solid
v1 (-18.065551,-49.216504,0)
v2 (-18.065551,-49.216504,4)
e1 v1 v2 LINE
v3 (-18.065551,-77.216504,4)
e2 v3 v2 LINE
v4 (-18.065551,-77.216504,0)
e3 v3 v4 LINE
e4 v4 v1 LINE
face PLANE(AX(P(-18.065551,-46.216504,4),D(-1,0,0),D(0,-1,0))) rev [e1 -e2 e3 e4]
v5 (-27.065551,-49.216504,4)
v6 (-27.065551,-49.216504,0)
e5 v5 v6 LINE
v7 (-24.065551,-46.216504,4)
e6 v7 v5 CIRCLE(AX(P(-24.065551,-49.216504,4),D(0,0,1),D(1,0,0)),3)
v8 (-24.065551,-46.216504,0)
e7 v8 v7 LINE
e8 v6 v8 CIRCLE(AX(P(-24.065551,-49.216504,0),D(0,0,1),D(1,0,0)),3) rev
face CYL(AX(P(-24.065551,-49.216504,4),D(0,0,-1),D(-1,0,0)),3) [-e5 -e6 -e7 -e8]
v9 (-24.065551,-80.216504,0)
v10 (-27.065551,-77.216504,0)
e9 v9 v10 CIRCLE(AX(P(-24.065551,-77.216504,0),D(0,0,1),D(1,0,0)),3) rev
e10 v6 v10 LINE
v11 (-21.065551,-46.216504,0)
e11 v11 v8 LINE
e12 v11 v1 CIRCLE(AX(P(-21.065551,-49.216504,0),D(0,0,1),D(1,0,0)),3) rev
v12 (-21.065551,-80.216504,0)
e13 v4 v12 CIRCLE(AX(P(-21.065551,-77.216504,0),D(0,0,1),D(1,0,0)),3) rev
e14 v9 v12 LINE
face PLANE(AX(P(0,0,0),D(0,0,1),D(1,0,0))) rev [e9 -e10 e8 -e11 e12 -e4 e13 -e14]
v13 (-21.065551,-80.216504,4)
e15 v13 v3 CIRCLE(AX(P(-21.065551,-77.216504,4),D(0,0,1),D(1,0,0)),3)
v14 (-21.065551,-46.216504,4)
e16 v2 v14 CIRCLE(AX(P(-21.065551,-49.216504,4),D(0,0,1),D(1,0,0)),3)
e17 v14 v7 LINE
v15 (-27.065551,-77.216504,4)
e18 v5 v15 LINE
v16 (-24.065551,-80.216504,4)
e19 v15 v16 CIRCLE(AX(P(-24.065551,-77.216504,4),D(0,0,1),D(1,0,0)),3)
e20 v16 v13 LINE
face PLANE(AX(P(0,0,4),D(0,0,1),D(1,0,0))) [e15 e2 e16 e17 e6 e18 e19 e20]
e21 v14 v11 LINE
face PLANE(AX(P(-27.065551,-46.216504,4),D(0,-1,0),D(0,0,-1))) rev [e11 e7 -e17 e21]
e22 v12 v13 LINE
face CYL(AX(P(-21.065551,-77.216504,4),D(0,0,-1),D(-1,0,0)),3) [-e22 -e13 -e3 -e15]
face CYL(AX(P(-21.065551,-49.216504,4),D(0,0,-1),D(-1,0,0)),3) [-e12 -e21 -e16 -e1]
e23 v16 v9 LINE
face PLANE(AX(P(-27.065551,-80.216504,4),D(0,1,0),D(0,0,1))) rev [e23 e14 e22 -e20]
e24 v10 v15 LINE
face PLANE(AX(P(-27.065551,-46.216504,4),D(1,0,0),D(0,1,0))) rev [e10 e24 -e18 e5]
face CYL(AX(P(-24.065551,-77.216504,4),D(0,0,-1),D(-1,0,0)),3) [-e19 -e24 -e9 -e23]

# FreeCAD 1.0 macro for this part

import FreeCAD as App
import Part
import Sketcher
Q = App.Units.Quantity


def edges_at(feature, points):
    """Names of the edges that pass closest to the given points."""
    edges = feature.Shape.Edges
    near = lambda p: min(range(len(edges)), key=lambda i: edges[i].distToShape(Part.Vertex(*p))[0])
    return sorted({f"Edge{near(p) + 1}" for p in points})


def add_polygon(sketch, points):
    """Adds a closed chain of lines whose ends are joined by coincident constraints."""
    first, n = sketch.GeometryCount, len(points)
    for a, b in zip(points, points[1:] + points[:1]):
        sketch.addGeometry(Part.LineSegment(App.Vector(*a, 0), App.Vector(*b, 0)), False)
    for i in range(n):
        sketch.addConstraint(Sketcher.Constraint("Coincident", first + i, 2, first + (i + 1) % n, 1))

doc = App.newDocument("Part")
body = doc.addObject("PartDesign::Body", "Body")

# Sketch on XY plane
sketch1 = body.newObject("Sketcher::SketchObject", "Sketch")
sketch1.AttachmentSupport = (doc.getObject("XY_Plane"), [""])
sketch1.MapMode = "FlatFace"
add_polygon(sketch1, [(-27, -46), (-27, -80), (-18, -80), (-18, -46)])  # lines 0-3
sketch1.addConstraint([
    Sketcher.Constraint("Vertical", 0),
    Sketcher.Constraint("Horizontal", 1),
    Sketcher.Constraint("Vertical", 2),
    Sketcher.Constraint("Horizontal", 3),
    Sketcher.Constraint("DistanceX", 1, 1, 1, 2, Q("9 mm")),
    Sketcher.Constraint("DistanceY", 0, 2, 0, 1, Q("34 mm")),
    Sketcher.Constraint("DistanceX", 0, 2, -1, 1, Q("27.065551 mm")),
    Sketcher.Constraint("DistanceY", 0, 2, -1, 1, Q("80.216504 mm")),
])
pad1 = body.newObject("PartDesign::Pad", "Pad")
pad1.Profile = sketch1
pad1.Length = 4
doc.recompute()

fillet = body.newObject("PartDesign::Fillet", "Fillet")
fillet.Base = (pad1, edges_at(pad1, [
    (-27.066, -46.217, 2),
    (-18.066, -46.217, 2),
    (-18.066, -80.217, 2),
    (-27.066, -80.217, 2),
]))
fillet.Radius = 3

doc.recompute()
